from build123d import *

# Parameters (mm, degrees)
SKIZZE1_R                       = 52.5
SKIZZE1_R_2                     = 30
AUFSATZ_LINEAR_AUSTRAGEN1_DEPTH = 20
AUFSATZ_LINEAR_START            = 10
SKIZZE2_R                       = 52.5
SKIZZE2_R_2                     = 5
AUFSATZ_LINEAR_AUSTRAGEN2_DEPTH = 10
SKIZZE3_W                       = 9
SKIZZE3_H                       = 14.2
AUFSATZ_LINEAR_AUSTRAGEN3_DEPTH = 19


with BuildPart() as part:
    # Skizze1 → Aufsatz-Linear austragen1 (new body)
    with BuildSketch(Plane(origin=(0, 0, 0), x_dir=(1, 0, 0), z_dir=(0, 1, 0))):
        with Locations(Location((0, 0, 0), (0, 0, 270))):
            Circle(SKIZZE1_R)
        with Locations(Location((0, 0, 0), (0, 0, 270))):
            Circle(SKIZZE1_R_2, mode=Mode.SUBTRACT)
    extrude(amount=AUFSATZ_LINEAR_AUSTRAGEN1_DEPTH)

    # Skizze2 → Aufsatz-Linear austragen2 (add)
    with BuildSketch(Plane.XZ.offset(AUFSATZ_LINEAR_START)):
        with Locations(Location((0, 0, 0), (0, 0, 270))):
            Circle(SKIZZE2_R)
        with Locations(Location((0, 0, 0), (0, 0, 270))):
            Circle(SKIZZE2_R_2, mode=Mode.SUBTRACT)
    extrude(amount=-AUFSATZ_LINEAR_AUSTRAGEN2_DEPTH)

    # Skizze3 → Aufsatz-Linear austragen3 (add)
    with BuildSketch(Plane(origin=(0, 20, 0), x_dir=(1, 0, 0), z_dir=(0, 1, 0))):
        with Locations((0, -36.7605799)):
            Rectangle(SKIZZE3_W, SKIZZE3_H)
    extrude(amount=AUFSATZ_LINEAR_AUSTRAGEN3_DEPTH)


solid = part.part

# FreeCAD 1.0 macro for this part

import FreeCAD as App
import Part
import Sketcher

V = App.Vector

doc = App.newDocument("Part")
body = doc.addObject("PartDesign::Body", "Body")

# Sketch on XZ plane
sketch1 = doc.addObject("Sketcher::SketchObject", "Sketch")
body.addObject(sketch1)
sketch1.AttachmentSupport = (doc.XZ_Plane, [""])
sketch1.MapMode = "FlatFace"
sketch1.addGeometry(Part.Circle(V(0, 0, 0), V(0, 0, 1), 52), False)
sketch1.addGeometry(Part.Circle(V(0, 0, 0), V(0, 0, 1), 30), False)
sketch1.addConstraint(Sketcher.Constraint("Coincident", 0, 3, -1, 1))
sketch1.addConstraint(Sketcher.Constraint("Coincident", 1, 3, -1, 1))
sketch1.addConstraint(Sketcher.Constraint("Diameter", 0, 105.0))
sketch1.addConstraint(Sketcher.Constraint("Diameter", 1, 60.0))
pad1 = doc.addObject("PartDesign::Pad", "Pad")
body.addObject(pad1)
pad1.Profile = sketch1
pad1.Length = 20
pad1.Reversed = True

# Sketch on XZ plane
sketch2 = doc.addObject("Sketcher::SketchObject", "Sketch001")
body.addObject(sketch2)
sketch2.AttachmentSupport = (doc.XZ_Plane, [""])
sketch2.MapMode = "FlatFace"
sketch2.AttachmentOffset = App.Placement(V(0, 0, 10), App.Rotation())
sketch2.addGeometry(Part.Circle(V(0, 0, 0), V(0, 0, 1), 52), False)
sketch2.addGeometry(Part.Circle(V(0, 0, 0), V(0, 0, 1), 5), False)
sketch2.addConstraint(Sketcher.Constraint("Coincident", 0, 3, -1, 1))
sketch2.addConstraint(Sketcher.Constraint("Coincident", 1, 3, -1, 1))
sketch2.addConstraint(Sketcher.Constraint("Diameter", 0, 105.0))
sketch2.addConstraint(Sketcher.Constraint("Diameter", 1, 10.0))
pad2 = doc.addObject("PartDesign::Pad", "Pad001")
body.addObject(pad2)
pad2.Profile = sketch2
pad2.Length = 10
pad2.Reversed = True

# Sketch on XZ plane
sketch3 = doc.addObject("Sketcher::SketchObject", "Sketch002")
body.addObject(sketch3)
sketch3.AttachmentSupport = (doc.XZ_Plane, [""])
sketch3.MapMode = "FlatFace"
sketch3.AttachmentOffset = App.Placement(V(0, 0, -20), App.Rotation())
sketch3.addGeometry(Part.LineSegment(V(-4, 30, 0), V(-4, 44, 0)), False)
sketch3.addGeometry(Part.LineSegment(V(-4, 44, 0), V(4, 44, 0)), False)
sketch3.addGeometry(Part.LineSegment(V(4, 44, 0), V(4, 30, 0)), False)
sketch3.addGeometry(Part.LineSegment(V(4, 30, 0), V(-4, 30, 0)), False)
sketch3.addConstraint(Sketcher.Constraint("Coincident", 0, 2, 1, 1))
sketch3.addConstraint(Sketcher.Constraint("Coincident", 1, 2, 2, 1))
sketch3.addConstraint(Sketcher.Constraint("Coincident", 2, 2, 3, 1))
sketch3.addConstraint(Sketcher.Constraint("Coincident", 3, 2, 0, 1))
sketch3.addConstraint(Sketcher.Constraint("Vertical", 0))
sketch3.addConstraint(Sketcher.Constraint("Horizontal", 1))
sketch3.addConstraint(Sketcher.Constraint("Vertical", 2))
sketch3.addConstraint(Sketcher.Constraint("Horizontal", 3))
sketch3.addConstraint(Sketcher.Constraint("DistanceX", 1, 1, 1, 2, 9.0))
sketch3.addConstraint(Sketcher.Constraint("DistanceY", 0, 1, 0, 2, 14.2))
sketch3.addConstraint(Sketcher.Constraint("DistanceX", 0, 2, -1, 1, 4.5))
sketch3.addConstraint(Sketcher.Constraint("DistanceY", -1, 1, 0, 2, 43.86058))
pad3 = doc.addObject("PartDesign::Pad", "Pad002")
body.addObject(pad3)
pad3.Profile = sketch3
pad3.Length = 19
pad3.Reversed = True

doc.recompute()
